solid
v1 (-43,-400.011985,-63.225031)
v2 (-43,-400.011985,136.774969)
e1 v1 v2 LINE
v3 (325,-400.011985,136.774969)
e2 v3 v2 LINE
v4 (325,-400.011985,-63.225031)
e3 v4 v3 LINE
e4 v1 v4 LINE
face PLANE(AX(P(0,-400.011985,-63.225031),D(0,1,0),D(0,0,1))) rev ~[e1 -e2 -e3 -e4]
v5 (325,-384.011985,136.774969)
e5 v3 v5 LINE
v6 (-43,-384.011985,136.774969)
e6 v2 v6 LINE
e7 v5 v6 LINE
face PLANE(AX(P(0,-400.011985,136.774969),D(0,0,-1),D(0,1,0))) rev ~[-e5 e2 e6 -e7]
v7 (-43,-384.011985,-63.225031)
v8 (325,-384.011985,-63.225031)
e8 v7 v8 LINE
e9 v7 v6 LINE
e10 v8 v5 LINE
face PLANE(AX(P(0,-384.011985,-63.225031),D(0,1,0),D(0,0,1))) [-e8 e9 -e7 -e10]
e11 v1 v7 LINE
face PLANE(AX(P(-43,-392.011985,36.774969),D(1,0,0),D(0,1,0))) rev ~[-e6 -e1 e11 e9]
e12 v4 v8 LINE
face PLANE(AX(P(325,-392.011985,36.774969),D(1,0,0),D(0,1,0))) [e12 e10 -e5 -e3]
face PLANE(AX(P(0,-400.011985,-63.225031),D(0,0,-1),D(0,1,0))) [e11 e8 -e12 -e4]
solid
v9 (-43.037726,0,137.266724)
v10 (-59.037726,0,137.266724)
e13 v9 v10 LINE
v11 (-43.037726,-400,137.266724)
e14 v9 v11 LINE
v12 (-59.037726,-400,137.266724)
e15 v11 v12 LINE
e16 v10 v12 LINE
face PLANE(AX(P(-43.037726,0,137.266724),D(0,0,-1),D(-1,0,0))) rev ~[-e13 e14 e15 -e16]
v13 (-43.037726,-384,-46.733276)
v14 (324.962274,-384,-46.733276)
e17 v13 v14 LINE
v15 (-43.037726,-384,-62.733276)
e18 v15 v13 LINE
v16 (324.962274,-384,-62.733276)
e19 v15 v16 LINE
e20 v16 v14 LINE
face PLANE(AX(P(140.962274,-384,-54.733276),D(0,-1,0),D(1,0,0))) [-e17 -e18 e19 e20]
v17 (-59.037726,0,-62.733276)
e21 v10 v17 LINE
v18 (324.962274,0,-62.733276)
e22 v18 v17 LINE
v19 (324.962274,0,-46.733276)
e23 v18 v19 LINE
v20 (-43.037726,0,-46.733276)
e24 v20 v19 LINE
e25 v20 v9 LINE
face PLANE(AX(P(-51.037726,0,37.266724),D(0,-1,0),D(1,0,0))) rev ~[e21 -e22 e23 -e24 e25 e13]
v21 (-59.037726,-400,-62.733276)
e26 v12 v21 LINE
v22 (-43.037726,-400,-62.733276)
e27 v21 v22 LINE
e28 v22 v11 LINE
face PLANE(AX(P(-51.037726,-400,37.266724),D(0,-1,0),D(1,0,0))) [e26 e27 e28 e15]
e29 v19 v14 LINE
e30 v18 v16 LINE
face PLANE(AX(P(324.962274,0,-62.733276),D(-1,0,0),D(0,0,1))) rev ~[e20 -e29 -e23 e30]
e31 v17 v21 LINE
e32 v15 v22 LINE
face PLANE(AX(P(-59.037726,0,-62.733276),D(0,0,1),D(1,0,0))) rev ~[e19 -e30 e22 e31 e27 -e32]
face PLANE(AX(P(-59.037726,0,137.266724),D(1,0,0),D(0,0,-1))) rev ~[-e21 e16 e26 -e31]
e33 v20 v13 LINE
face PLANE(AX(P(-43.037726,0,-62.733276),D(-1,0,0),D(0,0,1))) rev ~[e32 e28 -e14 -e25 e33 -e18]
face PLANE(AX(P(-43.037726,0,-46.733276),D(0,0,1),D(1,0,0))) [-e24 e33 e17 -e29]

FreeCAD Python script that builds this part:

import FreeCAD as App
import Part
import Sketcher

V = App.Vector
Q = App.Units.Quantity


def add_polygon(sketch, points):
    """Adds a closed chain of lines whose ends are joined by coincident constraints."""
    first, n = sketch.GeometryCount, len(points)
    for a, b in zip(points, points[1:] + points[:1]):
        sketch.addGeometry(Part.LineSegment(App.Vector(*a, 0), App.Vector(*b, 0)), False)
    for i in range(n):
        sketch.addConstraint(Sketcher.Constraint("Coincident", first + i, 2, first + (i + 1) % n, 1))

doc = App.newDocument("Part")
body = doc.addObject("PartDesign::Body", "Body")

# Sketch on XZ plane
sketch1 = doc.addObject("Sketcher::SketchObject", "Sketch")
body.addObject(sketch1)
sketch1.AttachmentSupport = (doc.XZ_Plane, [""])
sketch1.MapMode = "FlatFace"
add_polygon(sketch1, [(-43.037726, -46.733276), (-43.037726, -62.733276), (324.962274, -62.733276), (324.962274, -46.733276)])  # lines 0-3
sketch1.addConstraint([
    Sketcher.Constraint("Vertical", 0),
    Sketcher.Constraint("Horizontal", 1),
    Sketcher.Constraint("Vertical", 2),
    Sketcher.Constraint("Horizontal", 3),
    Sketcher.Constraint("DistanceX", 1, 1, 1, 2, Q("368 mm")),
    Sketcher.Constraint("DistanceY", 0, 2, 0, 1, Q("16 mm")),
    Sketcher.Constraint("DistanceX", 0, 2, -1, 1, Q("43.037726 mm")),
    Sketcher.Constraint("DistanceY", 0, 2, -1, 1, Q("62.733276 mm")),
])
pad1 = doc.addObject("PartDesign::Pad", "Pad")
body.addObject(pad1)
pad1.Profile = sketch1
pad1.Length = 384

# Sketch on XZ plane
sketch2 = doc.addObject("Sketcher::SketchObject", "Sketch001")
body.addObject(sketch2)
sketch2.AttachmentSupport = (doc.XZ_Plane, [""])
sketch2.MapMode = "FlatFace"
add_polygon(sketch2, [(-43.037726, 137.266724), (-59.037726, 137.266724), (-59.037726, -62.733276), (-43.037726, -62.733276)])  # lines 0-3
sketch2.addConstraint([
    Sketcher.Constraint("Horizontal", 0),
    Sketcher.Constraint("Vertical", 1),
    Sketcher.Constraint("Horizontal", 2),
    Sketcher.Constraint("Vertical", 3),
    Sketcher.Constraint("DistanceX", 0, 2, 0, 1, Q("16 mm")),
    Sketcher.Constraint("DistanceY", 1, 2, 1, 1, Q("200 mm")),
    Sketcher.Constraint("DistanceX", 0, 2, -1, 1, Q("59.037726 mm")),
    Sketcher.Constraint("DistanceY", -1, 1, 0, 2, Q("137.266724 mm")),
])
pad2 = doc.addObject("PartDesign::Pad", "Pad001")
body.addObject(pad2)
pad2.Profile = sketch2
pad2.Length = 400
body2 = doc.addObject("PartDesign::Body", "Body001")

# Sketch on YZ plane
sketch3 = doc.addObject("Sketcher::SketchObject", "Sketch002")
body2.addObject(sketch3)
sketch3.AttachmentSupport = (doc.getObject("YZ_Plane001"), [""])
sketch3.MapMode = "FlatFace"
add_polygon(sketch3, [(-400.011985, 136.774969), (-400.011985, -63.225031), (-384.011985, -63.225031), (-384.011985, 136.774969)])  # lines 0-3
sketch3.addConstraint([
    Sketcher.Constraint("Vertical", 0),
    Sketcher.Constraint("Horizontal", 1),
    Sketcher.Constraint("Vertical", 2),
    Sketcher.Constraint("Horizontal", 3),
    Sketcher.Constraint("DistanceX", 1, 1, 1, 2, Q("16 mm")),
    Sketcher.Constraint("DistanceY", 0, 2, 0, 1, Q("200 mm")),
    Sketcher.Constraint("DistanceY", 0, 2, -1, 1, Q("63.225031 mm")),
    Sketcher.Constraint("DistanceX", 0, 2, -1, 1, Q("400.011985 mm")),
])
pad3 = doc.addObject("PartDesign::Pad", "Pad002")
body2.addObject(pad3)
pad3.Profile = sketch3
pad3.Type = "TwoLengths"
pad3.Length = 325
pad3.Length2 = 43

doc.recompute()
